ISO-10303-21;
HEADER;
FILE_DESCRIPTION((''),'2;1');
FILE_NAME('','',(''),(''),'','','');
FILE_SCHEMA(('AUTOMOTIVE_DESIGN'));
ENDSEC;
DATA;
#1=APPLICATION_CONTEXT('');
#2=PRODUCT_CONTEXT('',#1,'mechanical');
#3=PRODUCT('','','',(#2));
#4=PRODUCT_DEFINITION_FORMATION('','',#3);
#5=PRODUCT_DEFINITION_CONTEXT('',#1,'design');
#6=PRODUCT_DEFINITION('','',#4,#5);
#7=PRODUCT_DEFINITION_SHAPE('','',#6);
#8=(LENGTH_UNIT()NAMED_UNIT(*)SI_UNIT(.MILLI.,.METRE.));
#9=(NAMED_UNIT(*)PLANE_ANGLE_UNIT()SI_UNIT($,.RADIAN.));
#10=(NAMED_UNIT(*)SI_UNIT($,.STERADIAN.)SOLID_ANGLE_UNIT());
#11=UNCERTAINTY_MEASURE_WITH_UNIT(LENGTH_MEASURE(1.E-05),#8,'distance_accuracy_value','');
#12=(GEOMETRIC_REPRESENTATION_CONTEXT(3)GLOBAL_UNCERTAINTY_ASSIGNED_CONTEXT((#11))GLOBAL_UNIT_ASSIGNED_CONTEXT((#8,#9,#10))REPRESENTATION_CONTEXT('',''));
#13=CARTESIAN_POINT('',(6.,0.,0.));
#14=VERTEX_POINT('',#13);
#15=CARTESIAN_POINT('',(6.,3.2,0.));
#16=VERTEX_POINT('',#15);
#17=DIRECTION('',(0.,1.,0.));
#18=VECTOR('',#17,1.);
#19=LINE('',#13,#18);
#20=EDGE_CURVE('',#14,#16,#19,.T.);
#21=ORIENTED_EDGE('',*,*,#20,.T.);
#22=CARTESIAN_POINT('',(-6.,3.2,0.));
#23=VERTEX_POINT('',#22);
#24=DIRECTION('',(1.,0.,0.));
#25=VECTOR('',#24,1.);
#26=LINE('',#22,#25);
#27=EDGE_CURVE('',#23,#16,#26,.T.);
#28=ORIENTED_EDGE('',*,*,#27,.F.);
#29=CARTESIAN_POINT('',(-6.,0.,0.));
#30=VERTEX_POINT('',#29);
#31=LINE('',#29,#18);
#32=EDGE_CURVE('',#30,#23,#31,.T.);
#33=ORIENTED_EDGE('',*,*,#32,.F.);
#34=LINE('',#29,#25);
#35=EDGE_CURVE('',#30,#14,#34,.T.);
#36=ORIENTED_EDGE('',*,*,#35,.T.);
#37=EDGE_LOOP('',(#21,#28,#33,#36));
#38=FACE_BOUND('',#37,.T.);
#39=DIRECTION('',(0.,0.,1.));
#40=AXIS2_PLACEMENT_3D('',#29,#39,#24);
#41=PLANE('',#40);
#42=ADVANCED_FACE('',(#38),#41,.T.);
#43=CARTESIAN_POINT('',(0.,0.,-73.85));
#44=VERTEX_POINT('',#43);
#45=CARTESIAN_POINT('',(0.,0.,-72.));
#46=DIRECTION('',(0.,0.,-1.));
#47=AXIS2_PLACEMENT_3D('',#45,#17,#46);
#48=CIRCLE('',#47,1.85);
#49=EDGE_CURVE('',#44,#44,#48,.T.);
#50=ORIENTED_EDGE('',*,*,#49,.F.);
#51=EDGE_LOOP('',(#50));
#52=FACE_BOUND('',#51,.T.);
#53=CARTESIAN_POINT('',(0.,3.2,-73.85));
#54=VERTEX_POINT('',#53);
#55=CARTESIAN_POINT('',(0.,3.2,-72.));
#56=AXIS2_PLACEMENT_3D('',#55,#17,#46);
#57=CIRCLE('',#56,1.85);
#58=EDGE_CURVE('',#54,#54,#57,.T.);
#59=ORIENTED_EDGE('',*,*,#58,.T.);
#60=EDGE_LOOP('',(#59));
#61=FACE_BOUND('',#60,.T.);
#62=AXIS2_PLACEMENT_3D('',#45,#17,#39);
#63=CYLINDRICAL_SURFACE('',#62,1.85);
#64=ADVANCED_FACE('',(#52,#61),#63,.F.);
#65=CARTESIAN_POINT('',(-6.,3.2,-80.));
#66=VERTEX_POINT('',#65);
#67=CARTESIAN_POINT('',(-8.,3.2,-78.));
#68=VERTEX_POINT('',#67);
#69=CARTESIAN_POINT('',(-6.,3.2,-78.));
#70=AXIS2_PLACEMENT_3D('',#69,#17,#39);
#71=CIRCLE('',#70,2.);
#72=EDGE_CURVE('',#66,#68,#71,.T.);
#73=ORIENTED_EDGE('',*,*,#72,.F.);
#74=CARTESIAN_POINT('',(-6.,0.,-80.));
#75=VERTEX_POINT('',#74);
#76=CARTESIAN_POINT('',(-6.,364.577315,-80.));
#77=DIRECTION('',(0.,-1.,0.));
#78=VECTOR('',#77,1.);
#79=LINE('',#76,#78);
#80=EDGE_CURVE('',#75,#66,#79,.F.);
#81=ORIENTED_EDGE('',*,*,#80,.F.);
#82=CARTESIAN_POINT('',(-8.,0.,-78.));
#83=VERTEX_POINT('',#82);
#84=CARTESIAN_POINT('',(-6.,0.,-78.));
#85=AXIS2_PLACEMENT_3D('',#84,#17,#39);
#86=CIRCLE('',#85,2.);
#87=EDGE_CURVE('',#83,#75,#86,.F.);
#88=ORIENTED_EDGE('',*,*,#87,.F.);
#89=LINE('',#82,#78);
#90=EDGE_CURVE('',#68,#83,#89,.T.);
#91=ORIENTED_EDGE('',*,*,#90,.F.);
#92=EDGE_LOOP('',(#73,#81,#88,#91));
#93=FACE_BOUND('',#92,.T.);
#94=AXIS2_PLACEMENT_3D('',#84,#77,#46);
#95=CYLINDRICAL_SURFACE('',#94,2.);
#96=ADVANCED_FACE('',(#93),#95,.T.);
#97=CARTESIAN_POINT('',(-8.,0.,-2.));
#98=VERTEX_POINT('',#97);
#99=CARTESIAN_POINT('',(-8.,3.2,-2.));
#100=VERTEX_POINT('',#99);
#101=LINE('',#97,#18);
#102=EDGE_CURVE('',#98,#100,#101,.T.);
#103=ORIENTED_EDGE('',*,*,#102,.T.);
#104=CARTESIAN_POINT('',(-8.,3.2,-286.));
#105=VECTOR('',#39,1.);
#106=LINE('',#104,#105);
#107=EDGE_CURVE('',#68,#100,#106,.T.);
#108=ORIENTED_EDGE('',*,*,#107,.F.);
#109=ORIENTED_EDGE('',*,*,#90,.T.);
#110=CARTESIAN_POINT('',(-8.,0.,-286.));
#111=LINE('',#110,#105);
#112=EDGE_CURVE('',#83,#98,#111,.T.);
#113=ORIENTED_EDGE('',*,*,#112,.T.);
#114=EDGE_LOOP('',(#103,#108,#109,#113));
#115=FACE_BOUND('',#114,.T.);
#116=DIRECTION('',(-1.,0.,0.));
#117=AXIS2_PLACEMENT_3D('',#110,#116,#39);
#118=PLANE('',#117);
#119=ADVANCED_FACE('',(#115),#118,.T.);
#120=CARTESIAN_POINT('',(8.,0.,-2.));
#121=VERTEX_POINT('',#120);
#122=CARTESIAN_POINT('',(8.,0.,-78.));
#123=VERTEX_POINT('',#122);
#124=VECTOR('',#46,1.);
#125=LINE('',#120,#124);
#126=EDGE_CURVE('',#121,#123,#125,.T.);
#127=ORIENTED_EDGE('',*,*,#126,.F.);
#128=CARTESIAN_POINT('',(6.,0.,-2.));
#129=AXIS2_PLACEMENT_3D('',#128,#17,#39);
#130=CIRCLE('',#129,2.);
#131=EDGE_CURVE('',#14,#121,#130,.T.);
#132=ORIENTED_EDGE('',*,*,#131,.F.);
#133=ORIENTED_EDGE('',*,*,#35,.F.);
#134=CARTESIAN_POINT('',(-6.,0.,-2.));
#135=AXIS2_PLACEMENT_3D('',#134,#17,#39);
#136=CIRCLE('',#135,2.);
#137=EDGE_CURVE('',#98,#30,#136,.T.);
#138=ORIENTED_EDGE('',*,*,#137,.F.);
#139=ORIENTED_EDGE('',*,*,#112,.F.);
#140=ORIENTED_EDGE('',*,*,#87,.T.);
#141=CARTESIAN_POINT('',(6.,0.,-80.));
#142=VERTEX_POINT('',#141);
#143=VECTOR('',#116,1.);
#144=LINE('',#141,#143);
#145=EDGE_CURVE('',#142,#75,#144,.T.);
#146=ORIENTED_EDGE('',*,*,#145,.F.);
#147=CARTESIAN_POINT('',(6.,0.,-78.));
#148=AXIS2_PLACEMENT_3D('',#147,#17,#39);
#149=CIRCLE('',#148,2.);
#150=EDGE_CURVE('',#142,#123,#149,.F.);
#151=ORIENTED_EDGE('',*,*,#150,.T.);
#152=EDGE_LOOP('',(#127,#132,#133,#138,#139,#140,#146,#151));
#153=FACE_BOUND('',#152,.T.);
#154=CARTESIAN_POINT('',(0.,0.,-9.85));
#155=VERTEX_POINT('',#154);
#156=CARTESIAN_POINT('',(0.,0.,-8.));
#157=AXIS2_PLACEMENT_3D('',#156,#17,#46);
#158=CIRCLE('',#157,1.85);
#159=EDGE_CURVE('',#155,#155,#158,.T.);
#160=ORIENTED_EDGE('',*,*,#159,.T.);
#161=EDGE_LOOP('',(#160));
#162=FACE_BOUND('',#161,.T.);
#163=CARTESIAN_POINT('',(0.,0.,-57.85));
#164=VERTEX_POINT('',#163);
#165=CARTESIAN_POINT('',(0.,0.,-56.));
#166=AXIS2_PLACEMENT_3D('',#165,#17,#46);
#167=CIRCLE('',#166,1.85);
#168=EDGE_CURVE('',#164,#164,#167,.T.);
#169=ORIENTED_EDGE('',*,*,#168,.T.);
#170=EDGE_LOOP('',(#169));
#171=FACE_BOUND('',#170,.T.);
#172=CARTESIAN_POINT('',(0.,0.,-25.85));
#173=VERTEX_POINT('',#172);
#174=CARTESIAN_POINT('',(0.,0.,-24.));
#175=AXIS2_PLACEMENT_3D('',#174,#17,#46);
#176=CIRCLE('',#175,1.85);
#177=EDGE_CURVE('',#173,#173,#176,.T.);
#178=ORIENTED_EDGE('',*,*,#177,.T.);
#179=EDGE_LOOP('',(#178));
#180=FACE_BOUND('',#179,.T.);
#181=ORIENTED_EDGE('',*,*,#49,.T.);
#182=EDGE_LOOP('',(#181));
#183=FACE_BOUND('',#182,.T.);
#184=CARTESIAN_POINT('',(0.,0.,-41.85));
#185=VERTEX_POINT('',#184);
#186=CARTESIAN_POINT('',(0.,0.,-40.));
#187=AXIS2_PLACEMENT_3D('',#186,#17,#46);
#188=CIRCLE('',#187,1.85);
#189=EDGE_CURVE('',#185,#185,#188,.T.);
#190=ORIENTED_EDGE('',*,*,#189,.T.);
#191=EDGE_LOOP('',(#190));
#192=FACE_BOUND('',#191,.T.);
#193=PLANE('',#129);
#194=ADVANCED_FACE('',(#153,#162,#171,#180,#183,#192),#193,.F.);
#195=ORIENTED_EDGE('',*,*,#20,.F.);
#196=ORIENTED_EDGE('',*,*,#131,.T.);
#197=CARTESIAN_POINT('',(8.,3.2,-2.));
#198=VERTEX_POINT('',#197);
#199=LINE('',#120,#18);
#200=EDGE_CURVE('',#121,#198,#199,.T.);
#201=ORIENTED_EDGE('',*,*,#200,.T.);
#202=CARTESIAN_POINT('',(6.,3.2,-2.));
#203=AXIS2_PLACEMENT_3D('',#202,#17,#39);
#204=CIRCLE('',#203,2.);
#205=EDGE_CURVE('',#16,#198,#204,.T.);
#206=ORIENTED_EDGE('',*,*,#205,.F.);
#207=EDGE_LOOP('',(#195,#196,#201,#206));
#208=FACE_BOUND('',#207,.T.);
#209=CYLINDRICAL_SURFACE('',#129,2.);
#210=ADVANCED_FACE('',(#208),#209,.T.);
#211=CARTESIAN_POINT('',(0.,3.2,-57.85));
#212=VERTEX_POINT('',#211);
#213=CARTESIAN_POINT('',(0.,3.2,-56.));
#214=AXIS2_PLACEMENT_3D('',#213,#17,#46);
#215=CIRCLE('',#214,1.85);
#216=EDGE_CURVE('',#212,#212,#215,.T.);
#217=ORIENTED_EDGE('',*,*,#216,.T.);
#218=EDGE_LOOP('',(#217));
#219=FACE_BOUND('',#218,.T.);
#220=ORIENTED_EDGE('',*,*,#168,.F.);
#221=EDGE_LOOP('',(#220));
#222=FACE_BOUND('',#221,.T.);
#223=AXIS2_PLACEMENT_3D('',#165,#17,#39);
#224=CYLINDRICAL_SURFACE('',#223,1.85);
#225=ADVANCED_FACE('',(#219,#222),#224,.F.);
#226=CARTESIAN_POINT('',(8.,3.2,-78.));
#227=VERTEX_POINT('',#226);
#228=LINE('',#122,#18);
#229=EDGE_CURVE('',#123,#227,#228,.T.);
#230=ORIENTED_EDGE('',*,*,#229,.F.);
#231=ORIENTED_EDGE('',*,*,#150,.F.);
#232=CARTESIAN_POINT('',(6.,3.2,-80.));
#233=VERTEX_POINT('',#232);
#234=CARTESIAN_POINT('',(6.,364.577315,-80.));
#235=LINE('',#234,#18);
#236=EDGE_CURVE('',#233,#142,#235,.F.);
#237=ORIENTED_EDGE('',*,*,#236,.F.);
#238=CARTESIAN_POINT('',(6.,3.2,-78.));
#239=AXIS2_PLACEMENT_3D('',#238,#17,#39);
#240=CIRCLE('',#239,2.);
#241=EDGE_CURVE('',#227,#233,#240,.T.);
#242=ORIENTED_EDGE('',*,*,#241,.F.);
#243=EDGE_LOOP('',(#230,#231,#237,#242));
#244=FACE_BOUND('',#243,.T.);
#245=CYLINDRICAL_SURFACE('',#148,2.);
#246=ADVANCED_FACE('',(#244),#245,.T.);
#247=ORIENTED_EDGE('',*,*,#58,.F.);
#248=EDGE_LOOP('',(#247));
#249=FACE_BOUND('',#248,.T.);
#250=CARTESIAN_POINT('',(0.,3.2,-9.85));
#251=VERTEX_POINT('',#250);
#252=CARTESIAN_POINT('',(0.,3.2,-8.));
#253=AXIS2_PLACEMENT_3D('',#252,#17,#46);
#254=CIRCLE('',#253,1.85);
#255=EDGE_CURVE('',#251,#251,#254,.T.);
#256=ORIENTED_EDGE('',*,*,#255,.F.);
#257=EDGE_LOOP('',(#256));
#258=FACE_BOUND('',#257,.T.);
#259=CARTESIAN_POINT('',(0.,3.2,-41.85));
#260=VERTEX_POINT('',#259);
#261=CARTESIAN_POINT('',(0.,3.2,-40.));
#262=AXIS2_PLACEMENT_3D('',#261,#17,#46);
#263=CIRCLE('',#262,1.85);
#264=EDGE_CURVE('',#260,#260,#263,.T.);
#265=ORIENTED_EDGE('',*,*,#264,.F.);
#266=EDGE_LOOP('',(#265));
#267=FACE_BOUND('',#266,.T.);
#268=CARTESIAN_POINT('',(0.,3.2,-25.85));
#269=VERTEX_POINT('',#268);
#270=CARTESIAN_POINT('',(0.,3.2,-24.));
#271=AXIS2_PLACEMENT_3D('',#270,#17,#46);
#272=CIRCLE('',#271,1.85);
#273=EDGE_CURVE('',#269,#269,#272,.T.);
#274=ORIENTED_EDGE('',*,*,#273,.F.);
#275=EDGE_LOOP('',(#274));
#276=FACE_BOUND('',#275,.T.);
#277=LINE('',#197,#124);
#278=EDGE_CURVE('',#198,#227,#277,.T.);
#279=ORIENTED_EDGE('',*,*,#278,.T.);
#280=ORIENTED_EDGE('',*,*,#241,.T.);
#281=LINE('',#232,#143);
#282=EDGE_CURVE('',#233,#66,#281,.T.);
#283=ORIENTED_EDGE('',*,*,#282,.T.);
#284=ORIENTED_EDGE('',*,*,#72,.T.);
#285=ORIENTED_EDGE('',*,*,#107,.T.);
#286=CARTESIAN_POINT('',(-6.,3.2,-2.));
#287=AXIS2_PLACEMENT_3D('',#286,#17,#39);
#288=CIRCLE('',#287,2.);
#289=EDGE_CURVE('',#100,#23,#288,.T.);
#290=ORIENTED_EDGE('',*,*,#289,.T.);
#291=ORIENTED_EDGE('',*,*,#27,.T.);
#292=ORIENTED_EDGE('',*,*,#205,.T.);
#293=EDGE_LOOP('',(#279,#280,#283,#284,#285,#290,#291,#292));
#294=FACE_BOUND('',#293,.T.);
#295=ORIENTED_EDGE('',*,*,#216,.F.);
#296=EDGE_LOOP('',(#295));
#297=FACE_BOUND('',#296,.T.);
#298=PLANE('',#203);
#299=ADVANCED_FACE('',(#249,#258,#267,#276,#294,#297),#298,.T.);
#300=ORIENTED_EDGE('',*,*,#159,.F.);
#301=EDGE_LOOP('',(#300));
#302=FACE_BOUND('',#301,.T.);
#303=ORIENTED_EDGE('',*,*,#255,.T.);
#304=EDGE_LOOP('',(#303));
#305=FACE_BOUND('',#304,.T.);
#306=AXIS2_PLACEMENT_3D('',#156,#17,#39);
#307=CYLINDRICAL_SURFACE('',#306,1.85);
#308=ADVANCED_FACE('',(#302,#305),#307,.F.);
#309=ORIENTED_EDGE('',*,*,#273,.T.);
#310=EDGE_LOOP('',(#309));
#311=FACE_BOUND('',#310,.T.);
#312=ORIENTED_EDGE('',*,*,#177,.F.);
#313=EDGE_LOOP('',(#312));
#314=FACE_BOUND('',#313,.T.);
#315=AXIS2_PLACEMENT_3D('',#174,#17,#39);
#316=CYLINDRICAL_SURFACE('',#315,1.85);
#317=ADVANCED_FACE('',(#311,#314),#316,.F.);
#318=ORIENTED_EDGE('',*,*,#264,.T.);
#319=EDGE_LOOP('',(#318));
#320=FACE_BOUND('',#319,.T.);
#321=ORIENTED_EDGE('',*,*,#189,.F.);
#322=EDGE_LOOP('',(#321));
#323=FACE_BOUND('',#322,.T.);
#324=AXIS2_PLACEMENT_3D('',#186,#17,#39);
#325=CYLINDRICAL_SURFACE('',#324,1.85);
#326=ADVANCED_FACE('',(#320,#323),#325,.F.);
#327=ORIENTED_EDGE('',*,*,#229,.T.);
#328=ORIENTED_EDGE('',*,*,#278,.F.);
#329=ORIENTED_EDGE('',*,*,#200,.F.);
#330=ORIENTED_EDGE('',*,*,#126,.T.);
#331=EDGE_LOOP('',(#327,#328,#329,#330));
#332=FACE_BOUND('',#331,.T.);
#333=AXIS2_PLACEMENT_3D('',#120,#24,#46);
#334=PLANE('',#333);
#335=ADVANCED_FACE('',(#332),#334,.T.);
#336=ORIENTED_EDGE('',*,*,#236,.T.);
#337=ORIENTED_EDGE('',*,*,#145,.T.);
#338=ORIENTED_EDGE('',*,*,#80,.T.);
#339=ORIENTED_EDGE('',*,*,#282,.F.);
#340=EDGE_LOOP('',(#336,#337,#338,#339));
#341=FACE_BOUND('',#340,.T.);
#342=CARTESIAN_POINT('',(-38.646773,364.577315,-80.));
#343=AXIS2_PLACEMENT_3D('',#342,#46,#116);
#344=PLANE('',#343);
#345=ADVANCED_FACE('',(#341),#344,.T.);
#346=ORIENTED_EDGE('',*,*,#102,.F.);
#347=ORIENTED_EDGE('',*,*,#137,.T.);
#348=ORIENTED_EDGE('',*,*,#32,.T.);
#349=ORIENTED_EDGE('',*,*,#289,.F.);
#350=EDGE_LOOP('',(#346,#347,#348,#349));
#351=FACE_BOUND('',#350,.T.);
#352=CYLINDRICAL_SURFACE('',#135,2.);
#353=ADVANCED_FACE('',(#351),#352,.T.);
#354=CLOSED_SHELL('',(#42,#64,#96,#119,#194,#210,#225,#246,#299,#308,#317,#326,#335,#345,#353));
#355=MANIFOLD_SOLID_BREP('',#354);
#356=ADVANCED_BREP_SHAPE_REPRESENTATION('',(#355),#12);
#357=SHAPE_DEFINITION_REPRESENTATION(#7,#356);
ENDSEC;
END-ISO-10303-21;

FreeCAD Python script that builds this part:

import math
import FreeCAD as App
import Part
import Sketcher

V = App.Vector
Q = App.Units.Quantity


def edges_at(feature, points):
    """Names of the edges that pass closest to the given points."""
    edges = feature.Shape.Edges
    near = lambda p: min(range(len(edges)), key=lambda i: edges[i].distToShape(Part.Vertex(*p))[0])
    return sorted({f"Edge{near(p) + 1}" for p in points})

doc = App.newDocument("Part")
body = doc.addObject("PartDesign::Body", "Body")

# Sketch on XZ plane
sketch1 = body.newObject("Sketcher::SketchObject", "Sketch")
sketch1.AttachmentSupport = (doc.getObject("XZ_Plane"), [""])
sketch1.MapMode = "FlatFace"
sketch1.AttachmentOffset = App.Placement(V(0, 0, -3.2), App.Rotation())
sketch1.addGeometry([
    Part.LineSegment(V(8, -2, 0), V(8, -286, 0)),  # 0
    Part.ArcOfCircle(Part.Circle(V(6, -286, 0), V(0, 0, 1), 2), math.radians(-90), math.radians(0)),  # 1
    Part.LineSegment(V(6, -288, 0), V(-6, -288, 0)),  # 2
    Part.ArcOfCircle(Part.Circle(V(-6, -286, 0), V(0, 0, 1), 2), math.radians(-180), math.radians(-90)),  # 3
    Part.LineSegment(V(-8, -286, 0), V(-8, -2, 0)),  # 4
    Part.ArcOfCircle(Part.Circle(V(-6, -2, 0), V(0, 0, 1), 2), math.radians(90), math.radians(180)),  # 5
    Part.LineSegment(V(-6, 0, 0), V(6, 0, 0)),  # 6
    Part.ArcOfCircle(Part.Circle(V(6, -2, 0), V(0, 0, 1), 2), math.radians(0), math.radians(90)),  # 7
    Part.Circle(V(0, -8, 0), V(0, 0, 1), 1.85),  # 8
    Part.Circle(V(0, -24, 0), V(0, 0, 1), 1.85),  # 9
    Part.Circle(V(0, -40, 0), V(0, 0, 1), 1.85),  # 10
    Part.Circle(V(0, -56, 0), V(0, 0, 1), 1.85),  # 11
    Part.Circle(V(0, -72, 0), V(0, 0, 1), 1.85),  # 12
    Part.Circle(V(0, -88, 0), V(0, 0, 1), 1.85),  # 13
    Part.Circle(V(0, -104, 0), V(0, 0, 1), 1.85),  # 14
    Part.Circle(V(0, -120, 0), V(0, 0, 1), 1.85),  # 15
    Part.Circle(V(0, -136, 0), V(0, 0, 1), 1.85),  # 16
    Part.Circle(V(0, -152, 0), V(0, 0, 1), 1.85),  # 17
    Part.Circle(V(0, -168, 0), V(0, 0, 1), 1.85),  # 18
    Part.Circle(V(0, -184, 0), V(0, 0, 1), 1.85),  # 19
    Part.Circle(V(0, -200, 0), V(0, 0, 1), 1.85),  # 20
    Part.Circle(V(0, -216, 0), V(0, 0, 1), 1.85),  # 21
    Part.Circle(V(0, -232, 0), V(0, 0, 1), 1.85),  # 22
    Part.Circle(V(0, -248, 0), V(0, 0, 1), 1.85),  # 23
    Part.Circle(V(0, -264, 0), V(0, 0, 1), 1.85),  # 24
    Part.Circle(V(0, -280, 0), V(0, 0, 1), 1.85),  # 25
], False)
sketch1.addConstraint([
    Sketcher.Constraint("Tangent", 0, 2, 1, 2),
    Sketcher.Constraint("Tangent", 1, 1, 2, 1),
    Sketcher.Constraint("Tangent", 2, 2, 3, 2),
    Sketcher.Constraint("Tangent", 3, 1, 4, 1),
    Sketcher.Constraint("Tangent", 4, 2, 5, 2),
    Sketcher.Constraint("Tangent", 5, 1, 6, 1),
    Sketcher.Constraint("Tangent", 6, 2, 7, 2),
    Sketcher.Constraint("Tangent", 7, 1, 0, 1),
    Sketcher.Constraint("Vertical", 0),
    Sketcher.Constraint("Horizontal", 2),
    Sketcher.Constraint("Vertical", 4),
    Sketcher.Constraint("Horizontal", 6),
    Sketcher.Constraint("Equal", 1, 3),
    Sketcher.Constraint("Equal", 3, 5),
    Sketcher.Constraint("Equal", 5, 7),
    Sketcher.Constraint("Equal", 8, 9),
    Sketcher.Constraint("Equal", 9, 10),
    Sketcher.Constraint("Equal", 10, 11),
    Sketcher.Constraint("Equal", 11, 12),
    Sketcher.Constraint("Equal", 12, 13),
    Sketcher.Constraint("Equal", 13, 14),
    Sketcher.Constraint("Equal", 14, 15),
    Sketcher.Constraint("Equal", 15, 16),
    Sketcher.Constraint("Equal", 16, 17),
    Sketcher.Constraint("Equal", 17, 18),
    Sketcher.Constraint("Equal", 18, 19),
    Sketcher.Constraint("Equal", 19, 20),
    Sketcher.Constraint("Equal", 20, 21),
    Sketcher.Constraint("Equal", 21, 22),
    Sketcher.Constraint("Equal", 22, 23),
    Sketcher.Constraint("Equal", 23, 24),
    Sketcher.Constraint("Equal", 24, 25),
    Sketcher.Constraint("Symmetric", 5, 1, 6, 2, -1, 1),
    Sketcher.Constraint("PointOnObject", 8, 3, -2),
    Sketcher.Constraint("PointOnObject", 9, 3, -2),
    Sketcher.Constraint("PointOnObject", 10, 3, -2),
    Sketcher.Constraint("PointOnObject", 11, 3, -2),
    Sketcher.Constraint("PointOnObject", 12, 3, -2),
    Sketcher.Constraint("PointOnObject", 13, 3, -2),
    Sketcher.Constraint("PointOnObject", 14, 3, -2),
    Sketcher.Constraint("PointOnObject", 15, 3, -2),
    Sketcher.Constraint("PointOnObject", 16, 3, -2),
    Sketcher.Constraint("PointOnObject", 17, 3, -2),
    Sketcher.Constraint("PointOnObject", 18, 3, -2),
    Sketcher.Constraint("PointOnObject", 19, 3, -2),
    Sketcher.Constraint("PointOnObject", 20, 3, -2),
    Sketcher.Constraint("PointOnObject", 21, 3, -2),
    Sketcher.Constraint("PointOnObject", 22, 3, -2),
    Sketcher.Constraint("PointOnObject", 23, 3, -2),
    Sketcher.Constraint("PointOnObject", 24, 3, -2),
    Sketcher.Constraint("PointOnObject", 25, 3, -2),
    Sketcher.Constraint("Radius", 1, Q("2 mm")),
    Sketcher.Constraint("Diameter", 8, Q("3.7 mm")),
    Sketcher.Constraint("DistanceX", 2, 2, 2, 1, Q("12 mm")),
    Sketcher.Constraint("DistanceY", 0, 2, 0, 1, Q("284 mm")),
    Sketcher.Constraint("DistanceY", 8, 3, -1, 1, Q("8 mm")),
    Sketcher.Constraint("DistanceY", 9, 3, -1, 1, Q("24 mm")),
    Sketcher.Constraint("DistanceY", 10, 3, -1, 1, Q("40 mm")),
    Sketcher.Constraint("DistanceY", 11, 3, -1, 1, Q("56 mm")),
    Sketcher.Constraint("DistanceY", 12, 3, -1, 1, Q("72 mm")),
    Sketcher.Constraint("DistanceY", 13, 3, -1, 1, Q("88 mm")),
    Sketcher.Constraint("DistanceY", 14, 3, -1, 1, Q("104 mm")),
    Sketcher.Constraint("DistanceY", 15, 3, -1, 1, Q("120 mm")),
    Sketcher.Constraint("DistanceY", 16, 3, -1, 1, Q("136 mm")),
    Sketcher.Constraint("DistanceY", 17, 3, -1, 1, Q("152 mm")),
    Sketcher.Constraint("DistanceY", 18, 3, -1, 1, Q("168 mm")),
    Sketcher.Constraint("DistanceY", 19, 3, -1, 1, Q("184 mm")),
    Sketcher.Constraint("DistanceY", 20, 3, -1, 1, Q("200 mm")),
    Sketcher.Constraint("DistanceY", 21, 3, -1, 1, Q("216 mm")),
    Sketcher.Constraint("DistanceY", 22, 3, -1, 1, Q("232 mm")),
    Sketcher.Constraint("DistanceY", 23, 3, -1, 1, Q("248 mm")),
    Sketcher.Constraint("DistanceY", 24, 3, -1, 1, Q("264 mm")),
    Sketcher.Constraint("DistanceY", 25, 3, -1, 1, Q("280 mm")),
])
pad1 = body.newObject("PartDesign::Pad", "Pad")
pad1.Profile = sketch1
pad1.Length = 3.2

# Sketch on XZ plane
sketch2 = body.newObject("Sketcher::SketchObject", "Sketch001")
sketch2.AttachmentSupport = (doc.getObject("XZ_Plane"), [""])
sketch2.MapMode = "FlatFace"
sketch2.addGeometry([
    Part.LineSegment(V(-474.979607, -80, 0), V(462.775363, -80, 0)),
    Part.LineSegment(V(462.775363, -80, 0), V(462.775363, -952.665669, 0)),
    Part.LineSegment(V(462.775363, -952.665669, 0), V(-474.979607, -952.665669, 0)),
    Part.LineSegment(V(-474.979607, -952.665669, 0), V(-474.979607, -80, 0)),
], False)
sketch2.addConstraint([
    Sketcher.Constraint("Coincident", 0, 2, 1, 1),
    Sketcher.Constraint("Coincident", 1, 2, 2, 1),
    Sketcher.Constraint("Coincident", 2, 2, 3, 1),
    Sketcher.Constraint("Coincident", 3, 2, 0, 1),
    Sketcher.Constraint("Horizontal", 0),
    Sketcher.Constraint("Vertical", 1),
    Sketcher.Constraint("Horizontal", 2),
    Sketcher.Constraint("Vertical", 3),
    Sketcher.Constraint("DistanceY", 0, 2, -1, 1, Q("80 mm")),
    Sketcher.Constraint("DistanceX", 0, 1, 0, 2, Q("937.754971 mm")),
    Sketcher.Constraint("DistanceY", 1, 2, 1, 1, Q("872.665669 mm")),
    Sketcher.Constraint("DistanceX", -1, 1, 0, 2, Q("462.775363 mm")),
])
pocket1 = body.newObject("PartDesign::Pocket", "Pocket")
pocket1.Profile = sketch2
pocket1.Type = "ThroughAll"
pocket1.Midplane = True
doc.recompute()

fillet = body.newObject("PartDesign::Fillet", "Fillet")
fillet.Base = (pocket1, edges_at(pocket1, [(8, 1.6, -80), (-8, 1.6, -80)]))
fillet.Radius = 2

doc.recompute()
